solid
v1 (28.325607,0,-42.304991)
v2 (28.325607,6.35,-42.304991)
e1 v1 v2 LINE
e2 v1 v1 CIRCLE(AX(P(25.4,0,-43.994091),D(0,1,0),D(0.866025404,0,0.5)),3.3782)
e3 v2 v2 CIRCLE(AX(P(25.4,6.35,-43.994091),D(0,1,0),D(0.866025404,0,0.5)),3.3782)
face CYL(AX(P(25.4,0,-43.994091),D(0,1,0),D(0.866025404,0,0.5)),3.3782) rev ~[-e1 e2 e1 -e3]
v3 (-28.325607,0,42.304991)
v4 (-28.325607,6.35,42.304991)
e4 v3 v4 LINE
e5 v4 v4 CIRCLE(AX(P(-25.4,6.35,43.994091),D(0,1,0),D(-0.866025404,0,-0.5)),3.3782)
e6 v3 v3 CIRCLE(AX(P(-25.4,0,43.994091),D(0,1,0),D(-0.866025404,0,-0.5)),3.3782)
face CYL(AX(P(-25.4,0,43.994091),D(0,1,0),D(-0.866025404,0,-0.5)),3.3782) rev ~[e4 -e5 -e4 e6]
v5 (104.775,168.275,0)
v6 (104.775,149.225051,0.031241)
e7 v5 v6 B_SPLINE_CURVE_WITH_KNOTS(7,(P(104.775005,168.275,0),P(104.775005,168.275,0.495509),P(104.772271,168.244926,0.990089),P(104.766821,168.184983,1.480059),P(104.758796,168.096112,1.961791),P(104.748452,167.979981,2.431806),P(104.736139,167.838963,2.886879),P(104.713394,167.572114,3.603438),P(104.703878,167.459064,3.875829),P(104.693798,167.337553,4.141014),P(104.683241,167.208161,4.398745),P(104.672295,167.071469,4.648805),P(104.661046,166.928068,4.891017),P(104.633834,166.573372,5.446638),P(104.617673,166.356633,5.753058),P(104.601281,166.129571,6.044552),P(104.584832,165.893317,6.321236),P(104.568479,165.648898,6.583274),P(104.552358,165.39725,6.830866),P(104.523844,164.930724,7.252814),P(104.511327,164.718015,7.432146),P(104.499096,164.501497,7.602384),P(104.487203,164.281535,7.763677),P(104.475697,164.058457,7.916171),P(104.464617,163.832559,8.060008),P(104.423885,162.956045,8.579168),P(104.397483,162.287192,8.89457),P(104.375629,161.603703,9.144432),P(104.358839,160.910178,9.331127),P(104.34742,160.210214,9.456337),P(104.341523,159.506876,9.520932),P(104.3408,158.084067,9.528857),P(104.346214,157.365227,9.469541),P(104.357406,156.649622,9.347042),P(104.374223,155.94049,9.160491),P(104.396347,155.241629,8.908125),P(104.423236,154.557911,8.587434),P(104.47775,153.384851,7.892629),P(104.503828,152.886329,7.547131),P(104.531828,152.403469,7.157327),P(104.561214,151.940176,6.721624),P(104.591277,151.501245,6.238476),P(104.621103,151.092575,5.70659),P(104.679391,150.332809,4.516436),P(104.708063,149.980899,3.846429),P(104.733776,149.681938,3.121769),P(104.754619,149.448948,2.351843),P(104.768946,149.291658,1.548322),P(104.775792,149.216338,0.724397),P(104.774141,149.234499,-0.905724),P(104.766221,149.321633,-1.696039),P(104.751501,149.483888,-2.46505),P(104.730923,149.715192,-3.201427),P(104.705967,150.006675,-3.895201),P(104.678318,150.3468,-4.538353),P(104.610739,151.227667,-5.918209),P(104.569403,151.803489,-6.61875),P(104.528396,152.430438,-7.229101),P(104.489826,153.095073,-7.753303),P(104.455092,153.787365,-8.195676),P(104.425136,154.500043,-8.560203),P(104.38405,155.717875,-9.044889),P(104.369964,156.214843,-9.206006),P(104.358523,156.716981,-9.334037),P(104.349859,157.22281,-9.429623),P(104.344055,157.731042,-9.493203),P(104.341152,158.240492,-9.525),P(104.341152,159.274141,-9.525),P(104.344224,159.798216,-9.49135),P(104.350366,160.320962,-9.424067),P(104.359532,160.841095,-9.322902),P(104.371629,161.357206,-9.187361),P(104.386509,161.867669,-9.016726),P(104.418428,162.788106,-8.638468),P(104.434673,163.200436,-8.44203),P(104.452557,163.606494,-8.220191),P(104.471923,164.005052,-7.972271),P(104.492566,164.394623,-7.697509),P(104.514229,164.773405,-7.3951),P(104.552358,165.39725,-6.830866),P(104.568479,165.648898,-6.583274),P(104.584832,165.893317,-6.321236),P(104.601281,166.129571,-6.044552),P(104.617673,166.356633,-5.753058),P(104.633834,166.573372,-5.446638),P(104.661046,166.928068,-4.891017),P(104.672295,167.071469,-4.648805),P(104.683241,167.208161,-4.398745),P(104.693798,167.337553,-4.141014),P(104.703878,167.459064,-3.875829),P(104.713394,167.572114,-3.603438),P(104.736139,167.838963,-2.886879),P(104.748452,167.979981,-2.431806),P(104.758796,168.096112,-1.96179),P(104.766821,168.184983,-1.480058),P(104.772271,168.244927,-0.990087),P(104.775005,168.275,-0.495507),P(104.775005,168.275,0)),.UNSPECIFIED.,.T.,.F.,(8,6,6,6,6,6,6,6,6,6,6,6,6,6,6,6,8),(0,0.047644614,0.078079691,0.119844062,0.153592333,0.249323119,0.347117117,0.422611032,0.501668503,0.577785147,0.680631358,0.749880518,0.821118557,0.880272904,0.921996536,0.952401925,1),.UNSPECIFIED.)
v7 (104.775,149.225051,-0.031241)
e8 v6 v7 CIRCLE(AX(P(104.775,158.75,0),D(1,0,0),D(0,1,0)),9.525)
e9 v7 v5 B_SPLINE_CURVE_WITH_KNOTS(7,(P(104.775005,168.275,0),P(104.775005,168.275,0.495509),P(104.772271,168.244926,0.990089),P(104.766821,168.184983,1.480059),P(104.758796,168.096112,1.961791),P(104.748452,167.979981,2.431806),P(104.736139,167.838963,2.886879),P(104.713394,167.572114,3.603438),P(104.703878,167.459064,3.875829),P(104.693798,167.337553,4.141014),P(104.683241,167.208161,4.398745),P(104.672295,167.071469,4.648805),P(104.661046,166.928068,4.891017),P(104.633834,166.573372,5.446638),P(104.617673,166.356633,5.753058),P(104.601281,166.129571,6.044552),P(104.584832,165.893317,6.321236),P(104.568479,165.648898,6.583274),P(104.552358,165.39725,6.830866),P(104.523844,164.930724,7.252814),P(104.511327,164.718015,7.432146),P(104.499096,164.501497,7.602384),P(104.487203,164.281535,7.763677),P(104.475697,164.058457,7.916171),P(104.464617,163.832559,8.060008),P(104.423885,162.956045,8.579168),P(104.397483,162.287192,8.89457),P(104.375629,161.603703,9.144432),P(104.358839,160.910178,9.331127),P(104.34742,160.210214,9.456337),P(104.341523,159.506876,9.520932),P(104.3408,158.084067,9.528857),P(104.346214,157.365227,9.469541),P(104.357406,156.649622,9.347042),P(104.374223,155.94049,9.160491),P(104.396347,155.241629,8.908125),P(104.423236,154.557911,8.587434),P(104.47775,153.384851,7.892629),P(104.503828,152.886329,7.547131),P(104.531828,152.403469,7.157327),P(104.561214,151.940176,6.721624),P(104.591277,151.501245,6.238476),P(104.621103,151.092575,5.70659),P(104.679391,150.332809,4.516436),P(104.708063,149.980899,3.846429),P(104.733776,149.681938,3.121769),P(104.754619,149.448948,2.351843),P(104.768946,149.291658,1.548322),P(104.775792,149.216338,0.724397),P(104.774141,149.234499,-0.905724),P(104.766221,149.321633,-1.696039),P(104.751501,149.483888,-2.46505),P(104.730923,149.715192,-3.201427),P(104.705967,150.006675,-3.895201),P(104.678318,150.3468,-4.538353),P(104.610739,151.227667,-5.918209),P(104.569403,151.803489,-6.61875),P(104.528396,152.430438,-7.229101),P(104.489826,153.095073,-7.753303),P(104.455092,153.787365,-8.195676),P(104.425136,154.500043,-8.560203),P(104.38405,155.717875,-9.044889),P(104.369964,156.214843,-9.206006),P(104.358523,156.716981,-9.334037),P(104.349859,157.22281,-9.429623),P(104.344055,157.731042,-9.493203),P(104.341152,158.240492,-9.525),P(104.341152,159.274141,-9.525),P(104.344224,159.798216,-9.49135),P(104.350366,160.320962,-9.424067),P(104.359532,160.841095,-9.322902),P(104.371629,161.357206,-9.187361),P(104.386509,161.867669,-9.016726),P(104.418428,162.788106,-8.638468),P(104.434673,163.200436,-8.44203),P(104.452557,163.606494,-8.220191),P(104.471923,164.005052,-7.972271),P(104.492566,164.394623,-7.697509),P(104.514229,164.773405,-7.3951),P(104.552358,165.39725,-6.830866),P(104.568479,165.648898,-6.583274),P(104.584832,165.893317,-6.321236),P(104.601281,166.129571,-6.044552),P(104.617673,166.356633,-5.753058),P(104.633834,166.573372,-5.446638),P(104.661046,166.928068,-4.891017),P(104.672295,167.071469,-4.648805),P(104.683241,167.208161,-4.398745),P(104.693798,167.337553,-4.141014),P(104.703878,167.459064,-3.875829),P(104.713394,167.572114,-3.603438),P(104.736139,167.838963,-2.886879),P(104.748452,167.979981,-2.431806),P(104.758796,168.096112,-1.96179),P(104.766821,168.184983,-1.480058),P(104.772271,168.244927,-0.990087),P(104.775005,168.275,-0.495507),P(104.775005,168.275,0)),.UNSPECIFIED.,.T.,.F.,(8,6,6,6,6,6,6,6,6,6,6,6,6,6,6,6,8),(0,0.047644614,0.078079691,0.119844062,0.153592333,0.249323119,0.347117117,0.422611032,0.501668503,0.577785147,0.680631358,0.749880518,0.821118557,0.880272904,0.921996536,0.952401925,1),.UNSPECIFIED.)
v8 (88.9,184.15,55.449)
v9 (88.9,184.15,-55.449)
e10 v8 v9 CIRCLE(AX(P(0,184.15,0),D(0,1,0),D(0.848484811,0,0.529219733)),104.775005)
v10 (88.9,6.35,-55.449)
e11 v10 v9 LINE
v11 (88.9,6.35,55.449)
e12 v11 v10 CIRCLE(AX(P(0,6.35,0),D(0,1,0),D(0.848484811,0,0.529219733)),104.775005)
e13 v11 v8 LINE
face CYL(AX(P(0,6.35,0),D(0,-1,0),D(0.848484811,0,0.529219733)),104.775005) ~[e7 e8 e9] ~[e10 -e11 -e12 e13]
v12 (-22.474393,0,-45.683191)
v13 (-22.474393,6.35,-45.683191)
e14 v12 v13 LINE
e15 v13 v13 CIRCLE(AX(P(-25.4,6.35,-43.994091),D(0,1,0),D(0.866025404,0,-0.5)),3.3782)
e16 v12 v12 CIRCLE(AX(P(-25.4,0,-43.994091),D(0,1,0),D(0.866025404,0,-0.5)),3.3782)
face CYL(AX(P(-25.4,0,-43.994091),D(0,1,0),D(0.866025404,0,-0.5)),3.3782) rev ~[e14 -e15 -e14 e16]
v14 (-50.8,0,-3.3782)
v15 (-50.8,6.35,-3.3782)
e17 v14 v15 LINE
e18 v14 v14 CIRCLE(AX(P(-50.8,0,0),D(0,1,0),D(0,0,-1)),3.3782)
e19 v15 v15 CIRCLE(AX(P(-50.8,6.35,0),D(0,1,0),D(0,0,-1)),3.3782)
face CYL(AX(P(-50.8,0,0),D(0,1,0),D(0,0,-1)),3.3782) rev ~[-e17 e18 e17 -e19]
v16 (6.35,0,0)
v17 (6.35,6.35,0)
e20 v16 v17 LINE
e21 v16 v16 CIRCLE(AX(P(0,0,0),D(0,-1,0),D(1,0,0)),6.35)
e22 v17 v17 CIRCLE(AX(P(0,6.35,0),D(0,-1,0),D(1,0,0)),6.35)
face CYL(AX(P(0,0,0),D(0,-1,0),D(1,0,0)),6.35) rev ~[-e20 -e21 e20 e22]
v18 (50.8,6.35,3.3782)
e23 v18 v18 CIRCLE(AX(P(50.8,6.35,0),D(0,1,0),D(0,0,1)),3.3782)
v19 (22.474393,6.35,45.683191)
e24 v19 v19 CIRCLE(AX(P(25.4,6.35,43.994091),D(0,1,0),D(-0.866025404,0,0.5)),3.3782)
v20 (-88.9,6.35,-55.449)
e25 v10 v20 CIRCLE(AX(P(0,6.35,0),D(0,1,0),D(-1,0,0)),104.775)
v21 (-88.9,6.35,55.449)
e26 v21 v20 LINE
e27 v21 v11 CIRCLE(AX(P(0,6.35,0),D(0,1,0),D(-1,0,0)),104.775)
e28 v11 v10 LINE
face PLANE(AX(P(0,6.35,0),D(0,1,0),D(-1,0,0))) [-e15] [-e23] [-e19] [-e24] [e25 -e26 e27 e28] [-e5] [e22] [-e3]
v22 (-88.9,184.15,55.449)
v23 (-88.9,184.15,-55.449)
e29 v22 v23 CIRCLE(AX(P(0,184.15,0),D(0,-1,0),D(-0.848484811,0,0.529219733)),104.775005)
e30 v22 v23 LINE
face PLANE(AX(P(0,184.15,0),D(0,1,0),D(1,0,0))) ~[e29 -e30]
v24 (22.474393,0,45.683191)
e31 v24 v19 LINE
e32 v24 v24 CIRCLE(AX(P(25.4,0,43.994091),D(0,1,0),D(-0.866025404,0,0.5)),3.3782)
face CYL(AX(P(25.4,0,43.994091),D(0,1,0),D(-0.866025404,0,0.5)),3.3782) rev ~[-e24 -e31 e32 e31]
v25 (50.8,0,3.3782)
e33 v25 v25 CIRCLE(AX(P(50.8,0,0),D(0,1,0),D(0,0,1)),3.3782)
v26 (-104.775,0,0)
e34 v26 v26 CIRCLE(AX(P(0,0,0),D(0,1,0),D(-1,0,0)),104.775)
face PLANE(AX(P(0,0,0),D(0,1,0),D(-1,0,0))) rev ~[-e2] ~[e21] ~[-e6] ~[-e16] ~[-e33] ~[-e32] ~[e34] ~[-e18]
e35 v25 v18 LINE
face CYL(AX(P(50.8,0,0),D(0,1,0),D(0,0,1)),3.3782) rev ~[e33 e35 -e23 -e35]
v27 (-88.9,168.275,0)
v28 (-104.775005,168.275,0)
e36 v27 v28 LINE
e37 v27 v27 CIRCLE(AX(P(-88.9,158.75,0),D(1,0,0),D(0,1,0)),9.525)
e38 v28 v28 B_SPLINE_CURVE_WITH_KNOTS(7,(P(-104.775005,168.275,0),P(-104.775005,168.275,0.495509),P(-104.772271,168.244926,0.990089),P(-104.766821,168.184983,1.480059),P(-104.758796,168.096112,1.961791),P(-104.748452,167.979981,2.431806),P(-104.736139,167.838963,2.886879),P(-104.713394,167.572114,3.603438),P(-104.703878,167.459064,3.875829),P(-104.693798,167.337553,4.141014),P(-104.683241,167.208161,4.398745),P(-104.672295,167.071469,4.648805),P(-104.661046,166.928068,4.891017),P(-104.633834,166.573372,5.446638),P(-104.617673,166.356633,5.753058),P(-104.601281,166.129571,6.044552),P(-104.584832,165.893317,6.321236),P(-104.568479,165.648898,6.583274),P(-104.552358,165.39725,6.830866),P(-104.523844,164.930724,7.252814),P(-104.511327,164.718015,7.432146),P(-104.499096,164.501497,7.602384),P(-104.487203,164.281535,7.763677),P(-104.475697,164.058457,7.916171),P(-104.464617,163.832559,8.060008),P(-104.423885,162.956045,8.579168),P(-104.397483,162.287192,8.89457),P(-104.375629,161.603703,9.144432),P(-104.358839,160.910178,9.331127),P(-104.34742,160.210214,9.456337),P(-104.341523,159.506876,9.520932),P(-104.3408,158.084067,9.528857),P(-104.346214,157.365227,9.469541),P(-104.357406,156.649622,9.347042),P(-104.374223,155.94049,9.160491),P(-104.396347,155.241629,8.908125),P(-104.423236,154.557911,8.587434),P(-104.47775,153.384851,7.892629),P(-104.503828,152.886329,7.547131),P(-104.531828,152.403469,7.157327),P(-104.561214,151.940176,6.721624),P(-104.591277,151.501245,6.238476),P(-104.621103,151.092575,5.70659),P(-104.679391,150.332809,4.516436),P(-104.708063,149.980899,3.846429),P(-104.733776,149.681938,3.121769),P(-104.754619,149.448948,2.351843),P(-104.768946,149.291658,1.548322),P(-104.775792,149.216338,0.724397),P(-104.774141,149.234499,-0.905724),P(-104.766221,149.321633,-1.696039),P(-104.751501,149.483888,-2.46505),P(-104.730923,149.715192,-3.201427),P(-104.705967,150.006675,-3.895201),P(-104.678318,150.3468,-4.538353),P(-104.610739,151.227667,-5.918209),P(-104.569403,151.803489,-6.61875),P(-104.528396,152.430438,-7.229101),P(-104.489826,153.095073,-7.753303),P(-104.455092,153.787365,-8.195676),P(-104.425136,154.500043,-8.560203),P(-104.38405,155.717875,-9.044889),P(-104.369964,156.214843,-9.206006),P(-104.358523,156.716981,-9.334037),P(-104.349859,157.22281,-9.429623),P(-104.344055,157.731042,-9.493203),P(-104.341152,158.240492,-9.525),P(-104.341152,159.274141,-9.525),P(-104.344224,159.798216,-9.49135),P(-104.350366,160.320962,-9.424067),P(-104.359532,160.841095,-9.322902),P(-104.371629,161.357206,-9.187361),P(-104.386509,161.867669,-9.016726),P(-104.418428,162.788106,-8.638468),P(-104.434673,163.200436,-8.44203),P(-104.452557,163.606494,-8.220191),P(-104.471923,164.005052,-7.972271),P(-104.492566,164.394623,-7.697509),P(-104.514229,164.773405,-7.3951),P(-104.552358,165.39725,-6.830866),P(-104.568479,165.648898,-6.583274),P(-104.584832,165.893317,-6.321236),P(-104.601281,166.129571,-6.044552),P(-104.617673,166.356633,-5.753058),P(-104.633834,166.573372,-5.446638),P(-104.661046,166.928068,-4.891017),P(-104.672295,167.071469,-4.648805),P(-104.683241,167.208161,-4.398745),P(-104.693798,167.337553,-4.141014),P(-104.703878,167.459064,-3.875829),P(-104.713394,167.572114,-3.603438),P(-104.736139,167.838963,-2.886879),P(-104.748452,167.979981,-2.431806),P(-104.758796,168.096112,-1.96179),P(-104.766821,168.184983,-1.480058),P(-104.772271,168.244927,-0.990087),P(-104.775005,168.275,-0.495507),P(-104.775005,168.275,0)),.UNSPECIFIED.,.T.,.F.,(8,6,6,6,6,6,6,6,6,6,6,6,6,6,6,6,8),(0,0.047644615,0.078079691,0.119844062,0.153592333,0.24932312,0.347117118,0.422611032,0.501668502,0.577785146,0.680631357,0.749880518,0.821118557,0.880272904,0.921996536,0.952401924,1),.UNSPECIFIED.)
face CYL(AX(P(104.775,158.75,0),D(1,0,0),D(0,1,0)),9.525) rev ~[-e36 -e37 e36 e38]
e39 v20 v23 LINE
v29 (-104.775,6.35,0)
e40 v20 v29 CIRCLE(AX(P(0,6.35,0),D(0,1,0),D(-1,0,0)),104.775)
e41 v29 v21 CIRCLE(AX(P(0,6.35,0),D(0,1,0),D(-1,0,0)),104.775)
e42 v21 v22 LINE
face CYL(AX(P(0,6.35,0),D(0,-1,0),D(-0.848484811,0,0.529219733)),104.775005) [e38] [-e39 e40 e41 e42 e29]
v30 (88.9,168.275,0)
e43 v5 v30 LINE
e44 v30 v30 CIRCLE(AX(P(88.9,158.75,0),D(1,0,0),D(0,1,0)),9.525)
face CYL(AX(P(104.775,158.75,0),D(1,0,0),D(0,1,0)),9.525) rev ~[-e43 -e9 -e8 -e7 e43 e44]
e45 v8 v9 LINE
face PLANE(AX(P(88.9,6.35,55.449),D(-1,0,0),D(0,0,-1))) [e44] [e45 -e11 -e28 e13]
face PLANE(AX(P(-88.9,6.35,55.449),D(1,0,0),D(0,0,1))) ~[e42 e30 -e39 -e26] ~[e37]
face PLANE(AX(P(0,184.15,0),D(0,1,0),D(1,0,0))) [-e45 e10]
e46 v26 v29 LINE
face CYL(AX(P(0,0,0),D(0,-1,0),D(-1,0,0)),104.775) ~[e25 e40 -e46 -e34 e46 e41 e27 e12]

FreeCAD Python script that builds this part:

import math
import FreeCAD as App
import Part
import Sketcher
Q = App.Units.Quantity

doc = App.newDocument("Part")
body = doc.addObject("PartDesign::Body", "Body")

# Sketch on XZ plane
sketch1 = body.newObject("Sketcher::SketchObject", "Sketch")
sketch1.AttachmentSupport = (doc.getObject("XZ_Plane"), [""])
sketch1.MapMode = "FlatFace"
sketch1.addGeometry(Part.Circle(App.Vector(0, 0, 0), App.Vector(0, 0, 1), 105), False)
sketch1.addConstraint([
    Sketcher.Constraint("Coincident", 0, 3, -1, 1),
    Sketcher.Constraint("Diameter", 0, Q("8.25 in")),
])
pad1 = body.newObject("PartDesign::Pad", "Pad")
pad1.Profile = sketch1
pad1.Length = Q("0.25 in")
pad1.Reversed = True

# Sketch on XZ plane
sketch2 = body.newObject("Sketcher::SketchObject", "Sketch001")
sketch2.AttachmentSupport = (doc.getObject("XZ_Plane"), [""])
sketch2.MapMode = "FlatFace"
sketch2.AttachmentOffset = App.Placement(App.Vector(0, 0, -0.25 * 25.4), App.Rotation())
sketch2.addGeometry([
    Part.LineSegment(App.Vector(89, -55, 0), App.Vector(89, 55, 0)),
    Part.ArcOfCircle(Part.Circle(App.Vector(0, 0, 0), App.Vector(0, 0, 1), 105), math.radians(-32), math.radians(32)),
], False)
sketch2.addConstraint([
    Sketcher.Constraint("Coincident", 0, 1, 1, 1),
    Sketcher.Constraint("Coincident", 1, 2, 0, 2),
    Sketcher.Constraint("Vertical", 0),
    Sketcher.Constraint("Coincident", 1, 3, -1, 1),
    Sketcher.Constraint("DistanceX", -1, 1, 0, 1, Q("3.5 in")),
    Sketcher.Constraint("Radius", 1, Q("4.125 in")),
])
pad2 = body.newObject("PartDesign::Pad", "Pad001")
pad2.Profile = sketch2
pad2.Length = Q("7 in")
pad2.Reversed = True
doc.recompute()

mirrored = body.newObject("PartDesign::Mirrored", "Mirrored")
mirrored.Originals = [pad2]
mirrored.MirrorPlane = (doc.getObject("YZ_Plane"), [""])
body.Tip = mirrored

# Sketch on YZ plane
sketch3 = body.newObject("Sketcher::SketchObject", "Sketch002")
sketch3.AttachmentSupport = (doc.getObject("YZ_Plane"), [""])
sketch3.MapMode = "FlatFace"
sketch3.AttachmentOffset = App.Placement(App.Vector(0, 0, 4.125 * 25.4), App.Rotation())
sketch3.addGeometry(Part.Circle(App.Vector(159, 0, 0), App.Vector(0, 0, 1), 10), False)
sketch3.addConstraint([
    Sketcher.Constraint("PointOnObject", 0, 3, -1),
    Sketcher.Constraint("Diameter", 0, Q("0.75 in")),
    Sketcher.Constraint("DistanceX", -1, 1, 0, 3, Q("6.25 in")),
])
pocket1 = body.newObject("PartDesign::Pocket", "Pocket")
pocket1.Profile = sketch3
pocket1.Type = "ThroughAll"

# Sketch on XZ plane
sketch4 = body.newObject("Sketcher::SketchObject", "Sketch003")
sketch4.AttachmentSupport = (doc.getObject("XZ_Plane"), [""])
sketch4.MapMode = "FlatFace"
sketch4.addGeometry(Part.Circle(App.Vector(0, 0, 0), App.Vector(0, 0, 1), 6), False)
sketch4.addConstraint([
    Sketcher.Constraint("Coincident", 0, 3, -1, 1),
    Sketcher.Constraint("Diameter", 0, Q("0.5 in")),
])
pocket2 = body.newObject("PartDesign::Pocket", "Pocket001")
pocket2.Profile = sketch4
pocket2.Type = "ThroughAll"

# Sketch on XZ plane
sketch5 = body.newObject("Sketcher::SketchObject", "Sketch004")
sketch5.AttachmentSupport = (doc.getObject("XZ_Plane"), [""])
sketch5.MapMode = "FlatFace"
sketch5.addGeometry(Part.Circle(App.Vector(-50.8, 0, 0), App.Vector(0, 0, 1), 3.4), False)
sketch5.addConstraint([
    Sketcher.Constraint("PointOnObject", 0, 3, -1),
    Sketcher.Constraint("Diameter", 0, Q("0.266 in")),
    Sketcher.Constraint("DistanceX", 0, 3, -1, 1, Q("2 in")),
])
doc.recompute()
hole = body.newObject("PartDesign::Hole", "Hole")
hole.Profile = sketch5
hole.ThreadType = "None"
hole.Diameter = Q("0.266 in")
hole.DepthType = "ThroughAll"
doc.recompute()

polarpattern = body.newObject("PartDesign::PolarPattern", "PolarPattern")
polarpattern.Originals = [hole]
polarpattern.Axis = (doc.getObject("Y_Axis"), [""])
polarpattern.Angle = 360
polarpattern.Occurrences = 6
body.Tip = polarpattern

doc.recompute()
